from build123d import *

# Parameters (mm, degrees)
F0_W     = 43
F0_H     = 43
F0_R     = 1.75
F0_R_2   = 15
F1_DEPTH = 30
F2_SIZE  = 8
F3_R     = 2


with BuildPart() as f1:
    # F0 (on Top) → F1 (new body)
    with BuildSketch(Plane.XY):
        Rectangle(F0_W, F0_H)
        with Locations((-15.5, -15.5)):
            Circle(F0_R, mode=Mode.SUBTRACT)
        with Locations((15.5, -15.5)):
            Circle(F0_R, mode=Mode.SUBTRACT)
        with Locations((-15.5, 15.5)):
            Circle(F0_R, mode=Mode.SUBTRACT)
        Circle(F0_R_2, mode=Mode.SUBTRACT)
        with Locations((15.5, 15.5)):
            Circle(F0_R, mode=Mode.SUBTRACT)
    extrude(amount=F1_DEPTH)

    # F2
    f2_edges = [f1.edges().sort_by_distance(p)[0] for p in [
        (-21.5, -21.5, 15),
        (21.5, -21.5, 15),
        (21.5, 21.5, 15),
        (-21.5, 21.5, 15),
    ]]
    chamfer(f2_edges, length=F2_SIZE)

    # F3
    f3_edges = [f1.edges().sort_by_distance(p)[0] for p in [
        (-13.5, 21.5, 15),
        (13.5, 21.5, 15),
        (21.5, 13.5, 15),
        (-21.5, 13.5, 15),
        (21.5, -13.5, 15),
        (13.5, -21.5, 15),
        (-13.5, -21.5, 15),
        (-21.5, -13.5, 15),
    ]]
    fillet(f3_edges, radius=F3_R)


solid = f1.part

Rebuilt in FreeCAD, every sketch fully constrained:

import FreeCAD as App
import Part
import Sketcher
Q = App.Units.Quantity


def edges_at(feature, points):
    """Names of the edges that pass closest to the given points."""
    edges = feature.Shape.Edges
    near = lambda p: min(range(len(edges)), key=lambda i: edges[i].distToShape(Part.Vertex(*p))[0])
    return sorted({f"Edge{near(p) + 1}" for p in points})

doc = App.newDocument("Part")
body = doc.addObject("PartDesign::Body", "Body")

# Sketch on XY plane
sketch1 = body.newObject("Sketcher::SketchObject", "Sketch")
sketch1.AttachmentSupport = (doc.getObject("XY_Plane"), [""])
sketch1.MapMode = "FlatFace"
sketch1.addGeometry([
    Part.LineSegment(App.Vector(-21.5, 21.5, 0), App.Vector(-21.5, -21.5, 0)),  # 0
    Part.LineSegment(App.Vector(-21.5, -21.5, 0), App.Vector(21.5, -21.5, 0)),  # 1
    Part.LineSegment(App.Vector(21.5, -21.5, 0), App.Vector(21.5, 21.5, 0)),  # 2
    Part.LineSegment(App.Vector(21.5, 21.5, 0), App.Vector(-21.5, 21.5, 0)),  # 3
    Part.Circle(App.Vector(-15.5, -15.5, 0), App.Vector(0, 0, 1), 1.8),  # 4
    Part.Circle(App.Vector(15.5, -15.5, 0), App.Vector(0, 0, 1), 1.8),  # 5
    Part.Circle(App.Vector(-15.5, 15.5, 0), App.Vector(0, 0, 1), 1.8),  # 6
    Part.Circle(App.Vector(0, 0, 0), App.Vector(0, 0, 1), 15),  # 7
    Part.Circle(App.Vector(15.5, 15.5, 0), App.Vector(0, 0, 1), 1.8),  # 8
], False)
sketch1.addConstraint([
    Sketcher.Constraint("Coincident", 0, 2, 1, 1),
    Sketcher.Constraint("Coincident", 1, 2, 2, 1),
    Sketcher.Constraint("Coincident", 2, 2, 3, 1),
    Sketcher.Constraint("Coincident", 3, 2, 0, 1),
    Sketcher.Constraint("Vertical", 0),
    Sketcher.Constraint("Horizontal", 1),
    Sketcher.Constraint("Vertical", 2),
    Sketcher.Constraint("Horizontal", 3),
    Sketcher.Constraint("Coincident", 7, 3, -1, 1),
    Sketcher.Constraint("Equal", 4, 5),
    Sketcher.Constraint("Equal", 5, 6),
    Sketcher.Constraint("Equal", 6, 8),
    Sketcher.Constraint("Symmetric", 5, 3, 6, 3, -1, 1),
    Sketcher.Constraint("Symmetric", 4, 3, 8, 3, -1, 1),
    Sketcher.Constraint("Symmetric", 0, 2, 2, 2, -1, 1),
    Sketcher.Constraint("Symmetric", 4, 3, 5, 3, -2),
    Sketcher.Constraint("Equal", 3, 0),
    Sketcher.Constraint("Diameter", 7, Q("30 mm")),
    Sketcher.Constraint("Diameter", 4, Q("3.5 mm")),
    Sketcher.Constraint("DistanceX", 1, 1, 1, 2, Q("43 mm")),
    Sketcher.Constraint("DistanceX", 4, 3, 5, 3, Q("31 mm")),
    Sketcher.Constraint("DistanceY", 4, 3, 6, 3, Q("31 mm")),
])
pad1 = body.newObject("PartDesign::Pad", "Pad")
pad1.Profile = sketch1
pad1.Length = 30
doc.recompute()

chamfer = body.newObject("PartDesign::Chamfer", "Chamfer")
chamfer.Base = (pad1, edges_at(pad1, [
    (-21.5, -21.5, 15),
    (21.5, -21.5, 15),
    (21.5, 21.5, 15),
    (-21.5, 21.5, 15),
]))
chamfer.Size = 8
doc.recompute()

fillet = body.newObject("PartDesign::Fillet", "Fillet")
fillet.Base = (chamfer, edges_at(chamfer, [
    (-13.5, 21.5, 15),
    (13.5, 21.5, 15),
    (21.5, 13.5, 15),
    (-21.5, 13.5, 15),
    (21.5, -13.5, 15),
    (13.5, -21.5, 15),
    (-13.5, -21.5, 15),
    (-21.5, -13.5, 15),
]))
fillet.Radius = 2

doc.recompute()
